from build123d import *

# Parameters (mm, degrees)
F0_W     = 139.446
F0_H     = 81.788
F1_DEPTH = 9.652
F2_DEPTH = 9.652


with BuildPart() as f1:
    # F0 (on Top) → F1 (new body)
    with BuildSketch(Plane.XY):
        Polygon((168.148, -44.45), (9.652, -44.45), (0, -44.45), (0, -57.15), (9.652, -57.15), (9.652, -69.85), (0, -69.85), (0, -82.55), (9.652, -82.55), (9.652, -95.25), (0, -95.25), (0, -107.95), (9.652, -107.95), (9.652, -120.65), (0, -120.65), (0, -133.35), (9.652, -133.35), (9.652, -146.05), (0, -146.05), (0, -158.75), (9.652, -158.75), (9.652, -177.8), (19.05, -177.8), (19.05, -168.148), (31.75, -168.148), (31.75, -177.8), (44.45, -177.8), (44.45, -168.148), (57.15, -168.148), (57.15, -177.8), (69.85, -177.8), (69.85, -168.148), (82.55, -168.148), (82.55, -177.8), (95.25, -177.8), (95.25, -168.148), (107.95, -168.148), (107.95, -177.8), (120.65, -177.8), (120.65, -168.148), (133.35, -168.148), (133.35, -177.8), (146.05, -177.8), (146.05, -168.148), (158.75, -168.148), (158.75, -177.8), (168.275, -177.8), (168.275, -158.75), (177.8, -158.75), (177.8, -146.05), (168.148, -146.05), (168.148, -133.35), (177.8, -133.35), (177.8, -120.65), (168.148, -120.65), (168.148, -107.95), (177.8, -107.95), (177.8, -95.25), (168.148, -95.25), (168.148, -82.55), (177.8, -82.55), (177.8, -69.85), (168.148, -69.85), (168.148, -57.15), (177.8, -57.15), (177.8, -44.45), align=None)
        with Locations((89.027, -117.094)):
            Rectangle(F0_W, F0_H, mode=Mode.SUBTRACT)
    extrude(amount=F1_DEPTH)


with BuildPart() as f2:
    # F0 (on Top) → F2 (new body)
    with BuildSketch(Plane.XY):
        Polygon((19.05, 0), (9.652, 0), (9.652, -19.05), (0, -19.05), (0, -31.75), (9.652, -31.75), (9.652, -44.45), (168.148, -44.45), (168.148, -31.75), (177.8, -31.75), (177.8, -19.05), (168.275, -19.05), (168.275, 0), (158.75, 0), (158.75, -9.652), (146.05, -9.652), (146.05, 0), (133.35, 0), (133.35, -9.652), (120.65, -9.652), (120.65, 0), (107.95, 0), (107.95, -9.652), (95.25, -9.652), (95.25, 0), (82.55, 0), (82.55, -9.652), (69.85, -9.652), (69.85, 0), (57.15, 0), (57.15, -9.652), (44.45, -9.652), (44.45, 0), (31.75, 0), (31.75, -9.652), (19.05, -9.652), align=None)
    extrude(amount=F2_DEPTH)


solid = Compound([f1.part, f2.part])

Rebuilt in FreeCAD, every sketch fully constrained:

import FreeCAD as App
import Part
import Sketcher

V = App.Vector
Q = App.Units.Quantity


def add_polygon(sketch, points):
    """Adds a closed chain of lines whose ends are joined by coincident constraints."""
    first, n = sketch.GeometryCount, len(points)
    for a, b in zip(points, points[1:] + points[:1]):
        sketch.addGeometry(Part.LineSegment(App.Vector(*a, 0), App.Vector(*b, 0)), False)
    for i in range(n):
        sketch.addConstraint(Sketcher.Constraint("Coincident", first + i, 2, first + (i + 1) % n, 1))

doc = App.newDocument("Part")
body = doc.addObject("PartDesign::Body", "Body")

# Sketch on XY plane
sketch1 = body.newObject("Sketcher::SketchObject", "Sketch")
sketch1.AttachmentSupport = (doc.getObject("XY_Plane"), [""])
sketch1.MapMode = "FlatFace"
add_polygon(sketch1, [(0, -44.45), (0, -57.15), (9.652, -57.15), (9.652, -69.85), (0, -69.85), (0, -82.55), (9.652, -82.55), (9.652, -95.25), (0, -95.25), (0, -107.95), (9.652, -107.95), (9.652, -120.65), (0, -120.65), (0, -133.35), (9.652, -133.35), (9.652, -146.05), (0, -146.05), (0, -158.75), (9.652, -158.75), (9.652, -177.8), (19.05, -177.8), (19.05, -168.148), (31.75, -168.148), (31.75, -177.8), (44.45, -177.8), (44.45, -168.148), (57.15, -168.148), (57.15, -177.8), (69.85, -177.8), (69.85, -168.148), (82.55, -168.148), (82.55, -177.8), (95.25, -177.8), (95.25, -168.148), (107.95, -168.148), (107.95, -177.8), (120.65, -177.8), (120.65, -168.148), (133.35, -168.148), (133.35, -177.8), (146.05, -177.8), (146.05, -168.148), (158.75, -168.148), (158.75, -177.8), (168.275, -177.8), (168.275, -158.75), (177.8, -158.75), (177.8, -146.05), (168.148, -146.05), (168.148, -133.35), (177.8, -133.35), (177.8, -120.65), (168.148, -120.65), (168.148, -107.95), (177.8, -107.95), (177.8, -95.25), (168.148, -95.25), (168.148, -82.55), (177.8, -82.55), (177.8, -69.85), (168.148, -69.85), (168.148, -57.15), (177.8, -57.15), (177.8, -44.45)])  # lines 0-63
add_polygon(sketch1, [(158.75, -157.988), (19.304, -157.988), (19.304, -76.2), (158.75, -76.2)])  # lines 64-67
sketch1.addConstraint([
    Sketcher.Constraint("Vertical", 0),
    Sketcher.Constraint("Horizontal", 1),
    Sketcher.Constraint("Vertical", 2),
    Sketcher.Constraint("Horizontal", 3),
    Sketcher.Constraint("Vertical", 4),
    Sketcher.Constraint("Horizontal", 5),
    Sketcher.Constraint("Vertical", 6),
    Sketcher.Constraint("Horizontal", 7),
    Sketcher.Constraint("Vertical", 8),
    Sketcher.Constraint("Horizontal", 9),
    Sketcher.Constraint("Vertical", 10),
    Sketcher.Constraint("Horizontal", 11),
    Sketcher.Constraint("Vertical", 12),
    Sketcher.Constraint("Horizontal", 13),
    Sketcher.Constraint("Vertical", 14),
    Sketcher.Constraint("Horizontal", 15),
    Sketcher.Constraint("Vertical", 16),
    Sketcher.Constraint("Horizontal", 17),
    Sketcher.Constraint("Vertical", 18),
    Sketcher.Constraint("Horizontal", 19),
    Sketcher.Constraint("Vertical", 20),
    Sketcher.Constraint("Horizontal", 21),
    Sketcher.Constraint("Vertical", 22),
    Sketcher.Constraint("Horizontal", 23),
    Sketcher.Constraint("Vertical", 24),
    Sketcher.Constraint("Horizontal", 25),
    Sketcher.Constraint("Vertical", 26),
    Sketcher.Constraint("Horizontal", 27),
    Sketcher.Constraint("Vertical", 28),
    Sketcher.Constraint("Horizontal", 29),
    Sketcher.Constraint("Vertical", 30),
    Sketcher.Constraint("Horizontal", 31),
    Sketcher.Constraint("Vertical", 32),
    Sketcher.Constraint("Horizontal", 33),
    Sketcher.Constraint("Vertical", 34),
    Sketcher.Constraint("Horizontal", 35),
    Sketcher.Constraint("Vertical", 36),
    Sketcher.Constraint("Horizontal", 37),
    Sketcher.Constraint("Vertical", 38),
    Sketcher.Constraint("Horizontal", 39),
    Sketcher.Constraint("Vertical", 40),
    Sketcher.Constraint("Horizontal", 41),
    Sketcher.Constraint("Vertical", 42),
    Sketcher.Constraint("Horizontal", 43),
    Sketcher.Constraint("Vertical", 44),
    Sketcher.Constraint("Horizontal", 45),
    Sketcher.Constraint("Vertical", 46),
    Sketcher.Constraint("Horizontal", 47),
    Sketcher.Constraint("Vertical", 48),
    Sketcher.Constraint("Horizontal", 49),
    Sketcher.Constraint("Vertical", 50),
    Sketcher.Constraint("Horizontal", 51),
    Sketcher.Constraint("Vertical", 52),
    Sketcher.Constraint("Horizontal", 53),
    Sketcher.Constraint("Vertical", 54),
    Sketcher.Constraint("Horizontal", 55),
    Sketcher.Constraint("Vertical", 56),
    Sketcher.Constraint("Horizontal", 57),
    Sketcher.Constraint("Vertical", 58),
    Sketcher.Constraint("Horizontal", 59),
    Sketcher.Constraint("Vertical", 60),
    Sketcher.Constraint("Horizontal", 61),
    Sketcher.Constraint("Vertical", 62),
    Sketcher.Constraint("Horizontal", 63),
    Sketcher.Constraint("Horizontal", 64),
    Sketcher.Constraint("Vertical", 65),
    Sketcher.Constraint("Horizontal", 66),
    Sketcher.Constraint("Vertical", 67),
    Sketcher.Constraint("PointOnObject", 0, 2, -2),
    Sketcher.Constraint("PointOnObject", 3, 2, -2),
    Sketcher.Constraint("PointOnObject", 7, 2, -2),
    Sketcher.Constraint("PointOnObject", 11, 2, -2),
    Sketcher.Constraint("PointOnObject", 15, 2, -2),
    Sketcher.Constraint("Horizontal", 19, 2, 22, 2),
    Sketcher.Constraint("Horizontal", 21, 2, 24, 2),
    Sketcher.Constraint("Horizontal", 23, 2, 26, 2),
    Sketcher.Constraint("Horizontal", 25, 2, 28, 2),
    Sketcher.Constraint("Horizontal", 27, 2, 30, 2),
    Sketcher.Constraint("Horizontal", 29, 2, 32, 2),
    Sketcher.Constraint("Horizontal", 31, 2, 34, 2),
    Sketcher.Constraint("Horizontal", 33, 2, 36, 2),
    Sketcher.Constraint("Horizontal", 35, 2, 38, 2),
    Sketcher.Constraint("Horizontal", 37, 2, 40, 2),
    Sketcher.Constraint("Horizontal", 39, 2, 42, 2),
    Sketcher.Constraint("Horizontal", 17, 2, 44, 2),
    Sketcher.Constraint("Horizontal", 15, 2, 46, 2),
    Sketcher.Constraint("Horizontal", 13, 2, 48, 2),
    Sketcher.Constraint("Horizontal", 11, 2, 50, 2),
    Sketcher.Constraint("Horizontal", 9, 2, 52, 2),
    Sketcher.Constraint("Horizontal", 7, 2, 54, 2),
    Sketcher.Constraint("Horizontal", 5, 2, 56, 2),
    Sketcher.Constraint("Horizontal", 3, 2, 58, 2),
    Sketcher.Constraint("Horizontal", 1, 2, 60, 2),
    Sketcher.Constraint("Vertical", 2, 2, 5, 2),
    Sketcher.Constraint("Vertical", 6, 2, 9, 2),
    Sketcher.Constraint("Vertical", 10, 2, 13, 2),
    Sketcher.Constraint("Vertical", 14, 2, 17, 2),
    Sketcher.Constraint("Vertical", 46, 2, 49, 2),
    Sketcher.Constraint("Vertical", 48, 2, 51, 2),
    Sketcher.Constraint("Vertical", 50, 2, 53, 2),
    Sketcher.Constraint("Vertical", 52, 2, 55, 2),
    Sketcher.Constraint("Vertical", 54, 2, 57, 2),
    Sketcher.Constraint("Vertical", 56, 2, 59, 2),
    Sketcher.Constraint("Vertical", 58, 2, 61, 2),
    Sketcher.Constraint("Vertical", 42, 2, 66, 2),
    Sketcher.Constraint("Equal", 21, 23),
    Sketcher.Constraint("Equal", 23, 25),
    Sketcher.Constraint("Equal", 25, 27),
    Sketcher.Constraint("Equal", 27, 29),
    Sketcher.Constraint("Equal", 29, 31),
    Sketcher.Constraint("Equal", 31, 33),
    Sketcher.Constraint("Equal", 33, 35),
    Sketcher.Constraint("Equal", 35, 37),
    Sketcher.Constraint("Equal", 37, 39),
    Sketcher.Constraint("Equal", 39, 41),
    Sketcher.Constraint("Equal", 43, 45),
    Sketcher.Constraint("Equal", 17, 47),
    Sketcher.Constraint("Equal", 41, 0),
    Sketcher.Constraint("Equal", 0, 2),
    Sketcher.Constraint("Equal", 2, 4),
    Sketcher.Constraint("Equal", 4, 6),
    Sketcher.Constraint("Equal", 6, 8),
    Sketcher.Constraint("Equal", 8, 10),
    Sketcher.Constraint("Equal", 10, 12),
    Sketcher.Constraint("Equal", 12, 14),
    Sketcher.Constraint("Equal", 14, 16),
    Sketcher.Constraint("Equal", 61, 20),
    Sketcher.Constraint("DistanceX", 63, 2, 63, 1, Q("7 in")),
    Sketcher.Constraint("DistanceX", 21, 1, 21, 2, Q("0.5 in")),
    Sketcher.Constraint("DistanceY", 18, 2, -1, 1, Q("7 in")),
    Sketcher.Constraint("DistanceY", 65, 2, -1, 1, Q("3 in")),
    Sketcher.Constraint("DistanceX", 1, 1, 1, 2, Q("0.38 in")),
    Sketcher.Constraint("DistanceX", 19, 1, 19, 2, Q("0.37 in")),
    Sketcher.Constraint("DistanceX", 64, 2, 64, 1, Q("5.49 in")),
    Sketcher.Constraint("DistanceY", 18, 2, 18, 1, Q("0.75 in")),
    Sketcher.Constraint("DistanceY", 65, 1, 65, 2, Q("3.22 in")),
])
pad1 = body.newObject("PartDesign::Pad", "Pad")
pad1.Profile = sketch1
pad1.Length = Q("0.38 in")
body2 = doc.addObject("PartDesign::Body", "Body001")

# Sketch on XY plane
sketch2 = body2.newObject("Sketcher::SketchObject", "Sketch001")
sketch2.AttachmentSupport = (doc.getObject("XY_Plane001"), [""])
sketch2.MapMode = "FlatFace"
add_polygon(sketch2, [(19.05, 0), (9.652, 0), (9.652, -19.05), (0, -19.05), (0, -31.75), (9.652, -31.75), (9.652, -44.45), (168.148, -44.45), (168.148, -31.75), (177.8, -31.75), (177.8, -19.05), (168.275, -19.05), (168.275, 0), (158.75, 0), (158.75, -9.652), (146.05, -9.652), (146.05, 0), (133.35, 0), (133.35, -9.652), (120.65, -9.652), (120.65, 0), (107.95, 0), (107.95, -9.652), (95.25, -9.652), (95.25, 0), (82.55, 0), (82.55, -9.652), (69.85, -9.652), (69.85, 0), (57.15, 0), (57.15, -9.652), (44.45, -9.652), (44.45, 0), (31.75, 0), (31.75, -9.652), (19.05, -9.652)])  # lines 0-35
sketch2.addConstraint([
    Sketcher.Constraint("Horizontal", 0),
    Sketcher.Constraint("Vertical", 1),
    Sketcher.Constraint("Horizontal", 2),
    Sketcher.Constraint("Vertical", 3),
    Sketcher.Constraint("Horizontal", 4),
    Sketcher.Constraint("Vertical", 5),
    Sketcher.Constraint("Horizontal", 6),
    Sketcher.Constraint("Vertical", 7),
    Sketcher.Constraint("Horizontal", 8),
    Sketcher.Constraint("Vertical", 9),
    Sketcher.Constraint("Horizontal", 10),
    Sketcher.Constraint("Vertical", 11),
    Sketcher.Constraint("Horizontal", 12),
    Sketcher.Constraint("Vertical", 13),
    Sketcher.Constraint("Horizontal", 14),
    Sketcher.Constraint("Vertical", 15),
    Sketcher.Constraint("Horizontal", 16),
    Sketcher.Constraint("Vertical", 17),
    Sketcher.Constraint("Horizontal", 18),
    Sketcher.Constraint("Vertical", 19),
    Sketcher.Constraint("Horizontal", 20),
    Sketcher.Constraint("Vertical", 21),
    Sketcher.Constraint("Horizontal", 22),
    Sketcher.Constraint("Vertical", 23),
    Sketcher.Constraint("Horizontal", 24),
    Sketcher.Constraint("Vertical", 25),
    Sketcher.Constraint("Horizontal", 26),
    Sketcher.Constraint("Vertical", 27),
    Sketcher.Constraint("Horizontal", 28),
    Sketcher.Constraint("Vertical", 29),
    Sketcher.Constraint("Horizontal", 30),
    Sketcher.Constraint("Vertical", 31),
    Sketcher.Constraint("Horizontal", 32),
    Sketcher.Constraint("Vertical", 33),
    Sketcher.Constraint("Horizontal", 34),
    Sketcher.Constraint("Vertical", 35),
    Sketcher.Constraint("PointOnObject", 0, 2, -1),
    Sketcher.Constraint("PointOnObject", 2, 2, -2),
    Sketcher.Constraint("PointOnObject", 11, 2, -1),
    Sketcher.Constraint("PointOnObject", 15, 2, -1),
    Sketcher.Constraint("PointOnObject", 19, 2, -1),
    Sketcher.Constraint("PointOnObject", 23, 2, -1),
    Sketcher.Constraint("PointOnObject", 27, 2, -1),
    Sketcher.Constraint("PointOnObject", 31, 2, -1),
    Sketcher.Constraint("Horizontal", 4, 2, 7, 2),
    Sketcher.Constraint("Horizontal", 2, 2, 9, 2),
    Sketcher.Constraint("Horizontal", 14, 2, 17, 2),
    Sketcher.Constraint("Horizontal", 18, 2, 21, 2),
    Sketcher.Constraint("Horizontal", 22, 2, 25, 2),
    Sketcher.Constraint("Horizontal", 26, 2, 29, 2),
    Sketcher.Constraint("Horizontal", 30, 2, 33, 2),
    Sketcher.Constraint("Vertical", 1, 2, 4, 2),
    Sketcher.Constraint("Equal", 4, 8),
    Sketcher.Constraint("Equal", 10, 12),
    Sketcher.Constraint("Equal", 14, 16),
    Sketcher.Constraint("Equal", 16, 18),
    Sketcher.Constraint("Equal", 18, 20),
    Sketcher.Constraint("Equal", 20, 22),
    Sketcher.Constraint("Equal", 22, 24),
    Sketcher.Constraint("Equal", 24, 26),
    Sketcher.Constraint("Equal", 26, 28),
    Sketcher.Constraint("Equal", 28, 30),
    Sketcher.Constraint("Equal", 30, 32),
    Sketcher.Constraint("Equal", 32, 34),
    Sketcher.Constraint("Equal", 34, 3),
    Sketcher.Constraint("Equal", 3, 5),
    Sketcher.Constraint("Equal", 8, 13),
    Sketcher.Constraint("DistanceX", 14, 2, 14, 1, Q("0.5 in")),
    Sketcher.Constraint("DistanceX", -1, 1, 8, 2, Q("7 in")),
    Sketcher.Constraint("DistanceX", 0, 2, 0, 1, Q("0.37 in")),
    Sketcher.Constraint("DistanceX", 2, 2, 2, 1, Q("0.38 in")),
    Sketcher.Constraint("DistanceY", 1, 2, 1, 1, Q("0.75 in")),
])
pad2 = body2.newObject("PartDesign::Pad", "Pad001")
pad2.Profile = sketch2
pad2.Length = Q("0.38 in")

doc.recompute()
